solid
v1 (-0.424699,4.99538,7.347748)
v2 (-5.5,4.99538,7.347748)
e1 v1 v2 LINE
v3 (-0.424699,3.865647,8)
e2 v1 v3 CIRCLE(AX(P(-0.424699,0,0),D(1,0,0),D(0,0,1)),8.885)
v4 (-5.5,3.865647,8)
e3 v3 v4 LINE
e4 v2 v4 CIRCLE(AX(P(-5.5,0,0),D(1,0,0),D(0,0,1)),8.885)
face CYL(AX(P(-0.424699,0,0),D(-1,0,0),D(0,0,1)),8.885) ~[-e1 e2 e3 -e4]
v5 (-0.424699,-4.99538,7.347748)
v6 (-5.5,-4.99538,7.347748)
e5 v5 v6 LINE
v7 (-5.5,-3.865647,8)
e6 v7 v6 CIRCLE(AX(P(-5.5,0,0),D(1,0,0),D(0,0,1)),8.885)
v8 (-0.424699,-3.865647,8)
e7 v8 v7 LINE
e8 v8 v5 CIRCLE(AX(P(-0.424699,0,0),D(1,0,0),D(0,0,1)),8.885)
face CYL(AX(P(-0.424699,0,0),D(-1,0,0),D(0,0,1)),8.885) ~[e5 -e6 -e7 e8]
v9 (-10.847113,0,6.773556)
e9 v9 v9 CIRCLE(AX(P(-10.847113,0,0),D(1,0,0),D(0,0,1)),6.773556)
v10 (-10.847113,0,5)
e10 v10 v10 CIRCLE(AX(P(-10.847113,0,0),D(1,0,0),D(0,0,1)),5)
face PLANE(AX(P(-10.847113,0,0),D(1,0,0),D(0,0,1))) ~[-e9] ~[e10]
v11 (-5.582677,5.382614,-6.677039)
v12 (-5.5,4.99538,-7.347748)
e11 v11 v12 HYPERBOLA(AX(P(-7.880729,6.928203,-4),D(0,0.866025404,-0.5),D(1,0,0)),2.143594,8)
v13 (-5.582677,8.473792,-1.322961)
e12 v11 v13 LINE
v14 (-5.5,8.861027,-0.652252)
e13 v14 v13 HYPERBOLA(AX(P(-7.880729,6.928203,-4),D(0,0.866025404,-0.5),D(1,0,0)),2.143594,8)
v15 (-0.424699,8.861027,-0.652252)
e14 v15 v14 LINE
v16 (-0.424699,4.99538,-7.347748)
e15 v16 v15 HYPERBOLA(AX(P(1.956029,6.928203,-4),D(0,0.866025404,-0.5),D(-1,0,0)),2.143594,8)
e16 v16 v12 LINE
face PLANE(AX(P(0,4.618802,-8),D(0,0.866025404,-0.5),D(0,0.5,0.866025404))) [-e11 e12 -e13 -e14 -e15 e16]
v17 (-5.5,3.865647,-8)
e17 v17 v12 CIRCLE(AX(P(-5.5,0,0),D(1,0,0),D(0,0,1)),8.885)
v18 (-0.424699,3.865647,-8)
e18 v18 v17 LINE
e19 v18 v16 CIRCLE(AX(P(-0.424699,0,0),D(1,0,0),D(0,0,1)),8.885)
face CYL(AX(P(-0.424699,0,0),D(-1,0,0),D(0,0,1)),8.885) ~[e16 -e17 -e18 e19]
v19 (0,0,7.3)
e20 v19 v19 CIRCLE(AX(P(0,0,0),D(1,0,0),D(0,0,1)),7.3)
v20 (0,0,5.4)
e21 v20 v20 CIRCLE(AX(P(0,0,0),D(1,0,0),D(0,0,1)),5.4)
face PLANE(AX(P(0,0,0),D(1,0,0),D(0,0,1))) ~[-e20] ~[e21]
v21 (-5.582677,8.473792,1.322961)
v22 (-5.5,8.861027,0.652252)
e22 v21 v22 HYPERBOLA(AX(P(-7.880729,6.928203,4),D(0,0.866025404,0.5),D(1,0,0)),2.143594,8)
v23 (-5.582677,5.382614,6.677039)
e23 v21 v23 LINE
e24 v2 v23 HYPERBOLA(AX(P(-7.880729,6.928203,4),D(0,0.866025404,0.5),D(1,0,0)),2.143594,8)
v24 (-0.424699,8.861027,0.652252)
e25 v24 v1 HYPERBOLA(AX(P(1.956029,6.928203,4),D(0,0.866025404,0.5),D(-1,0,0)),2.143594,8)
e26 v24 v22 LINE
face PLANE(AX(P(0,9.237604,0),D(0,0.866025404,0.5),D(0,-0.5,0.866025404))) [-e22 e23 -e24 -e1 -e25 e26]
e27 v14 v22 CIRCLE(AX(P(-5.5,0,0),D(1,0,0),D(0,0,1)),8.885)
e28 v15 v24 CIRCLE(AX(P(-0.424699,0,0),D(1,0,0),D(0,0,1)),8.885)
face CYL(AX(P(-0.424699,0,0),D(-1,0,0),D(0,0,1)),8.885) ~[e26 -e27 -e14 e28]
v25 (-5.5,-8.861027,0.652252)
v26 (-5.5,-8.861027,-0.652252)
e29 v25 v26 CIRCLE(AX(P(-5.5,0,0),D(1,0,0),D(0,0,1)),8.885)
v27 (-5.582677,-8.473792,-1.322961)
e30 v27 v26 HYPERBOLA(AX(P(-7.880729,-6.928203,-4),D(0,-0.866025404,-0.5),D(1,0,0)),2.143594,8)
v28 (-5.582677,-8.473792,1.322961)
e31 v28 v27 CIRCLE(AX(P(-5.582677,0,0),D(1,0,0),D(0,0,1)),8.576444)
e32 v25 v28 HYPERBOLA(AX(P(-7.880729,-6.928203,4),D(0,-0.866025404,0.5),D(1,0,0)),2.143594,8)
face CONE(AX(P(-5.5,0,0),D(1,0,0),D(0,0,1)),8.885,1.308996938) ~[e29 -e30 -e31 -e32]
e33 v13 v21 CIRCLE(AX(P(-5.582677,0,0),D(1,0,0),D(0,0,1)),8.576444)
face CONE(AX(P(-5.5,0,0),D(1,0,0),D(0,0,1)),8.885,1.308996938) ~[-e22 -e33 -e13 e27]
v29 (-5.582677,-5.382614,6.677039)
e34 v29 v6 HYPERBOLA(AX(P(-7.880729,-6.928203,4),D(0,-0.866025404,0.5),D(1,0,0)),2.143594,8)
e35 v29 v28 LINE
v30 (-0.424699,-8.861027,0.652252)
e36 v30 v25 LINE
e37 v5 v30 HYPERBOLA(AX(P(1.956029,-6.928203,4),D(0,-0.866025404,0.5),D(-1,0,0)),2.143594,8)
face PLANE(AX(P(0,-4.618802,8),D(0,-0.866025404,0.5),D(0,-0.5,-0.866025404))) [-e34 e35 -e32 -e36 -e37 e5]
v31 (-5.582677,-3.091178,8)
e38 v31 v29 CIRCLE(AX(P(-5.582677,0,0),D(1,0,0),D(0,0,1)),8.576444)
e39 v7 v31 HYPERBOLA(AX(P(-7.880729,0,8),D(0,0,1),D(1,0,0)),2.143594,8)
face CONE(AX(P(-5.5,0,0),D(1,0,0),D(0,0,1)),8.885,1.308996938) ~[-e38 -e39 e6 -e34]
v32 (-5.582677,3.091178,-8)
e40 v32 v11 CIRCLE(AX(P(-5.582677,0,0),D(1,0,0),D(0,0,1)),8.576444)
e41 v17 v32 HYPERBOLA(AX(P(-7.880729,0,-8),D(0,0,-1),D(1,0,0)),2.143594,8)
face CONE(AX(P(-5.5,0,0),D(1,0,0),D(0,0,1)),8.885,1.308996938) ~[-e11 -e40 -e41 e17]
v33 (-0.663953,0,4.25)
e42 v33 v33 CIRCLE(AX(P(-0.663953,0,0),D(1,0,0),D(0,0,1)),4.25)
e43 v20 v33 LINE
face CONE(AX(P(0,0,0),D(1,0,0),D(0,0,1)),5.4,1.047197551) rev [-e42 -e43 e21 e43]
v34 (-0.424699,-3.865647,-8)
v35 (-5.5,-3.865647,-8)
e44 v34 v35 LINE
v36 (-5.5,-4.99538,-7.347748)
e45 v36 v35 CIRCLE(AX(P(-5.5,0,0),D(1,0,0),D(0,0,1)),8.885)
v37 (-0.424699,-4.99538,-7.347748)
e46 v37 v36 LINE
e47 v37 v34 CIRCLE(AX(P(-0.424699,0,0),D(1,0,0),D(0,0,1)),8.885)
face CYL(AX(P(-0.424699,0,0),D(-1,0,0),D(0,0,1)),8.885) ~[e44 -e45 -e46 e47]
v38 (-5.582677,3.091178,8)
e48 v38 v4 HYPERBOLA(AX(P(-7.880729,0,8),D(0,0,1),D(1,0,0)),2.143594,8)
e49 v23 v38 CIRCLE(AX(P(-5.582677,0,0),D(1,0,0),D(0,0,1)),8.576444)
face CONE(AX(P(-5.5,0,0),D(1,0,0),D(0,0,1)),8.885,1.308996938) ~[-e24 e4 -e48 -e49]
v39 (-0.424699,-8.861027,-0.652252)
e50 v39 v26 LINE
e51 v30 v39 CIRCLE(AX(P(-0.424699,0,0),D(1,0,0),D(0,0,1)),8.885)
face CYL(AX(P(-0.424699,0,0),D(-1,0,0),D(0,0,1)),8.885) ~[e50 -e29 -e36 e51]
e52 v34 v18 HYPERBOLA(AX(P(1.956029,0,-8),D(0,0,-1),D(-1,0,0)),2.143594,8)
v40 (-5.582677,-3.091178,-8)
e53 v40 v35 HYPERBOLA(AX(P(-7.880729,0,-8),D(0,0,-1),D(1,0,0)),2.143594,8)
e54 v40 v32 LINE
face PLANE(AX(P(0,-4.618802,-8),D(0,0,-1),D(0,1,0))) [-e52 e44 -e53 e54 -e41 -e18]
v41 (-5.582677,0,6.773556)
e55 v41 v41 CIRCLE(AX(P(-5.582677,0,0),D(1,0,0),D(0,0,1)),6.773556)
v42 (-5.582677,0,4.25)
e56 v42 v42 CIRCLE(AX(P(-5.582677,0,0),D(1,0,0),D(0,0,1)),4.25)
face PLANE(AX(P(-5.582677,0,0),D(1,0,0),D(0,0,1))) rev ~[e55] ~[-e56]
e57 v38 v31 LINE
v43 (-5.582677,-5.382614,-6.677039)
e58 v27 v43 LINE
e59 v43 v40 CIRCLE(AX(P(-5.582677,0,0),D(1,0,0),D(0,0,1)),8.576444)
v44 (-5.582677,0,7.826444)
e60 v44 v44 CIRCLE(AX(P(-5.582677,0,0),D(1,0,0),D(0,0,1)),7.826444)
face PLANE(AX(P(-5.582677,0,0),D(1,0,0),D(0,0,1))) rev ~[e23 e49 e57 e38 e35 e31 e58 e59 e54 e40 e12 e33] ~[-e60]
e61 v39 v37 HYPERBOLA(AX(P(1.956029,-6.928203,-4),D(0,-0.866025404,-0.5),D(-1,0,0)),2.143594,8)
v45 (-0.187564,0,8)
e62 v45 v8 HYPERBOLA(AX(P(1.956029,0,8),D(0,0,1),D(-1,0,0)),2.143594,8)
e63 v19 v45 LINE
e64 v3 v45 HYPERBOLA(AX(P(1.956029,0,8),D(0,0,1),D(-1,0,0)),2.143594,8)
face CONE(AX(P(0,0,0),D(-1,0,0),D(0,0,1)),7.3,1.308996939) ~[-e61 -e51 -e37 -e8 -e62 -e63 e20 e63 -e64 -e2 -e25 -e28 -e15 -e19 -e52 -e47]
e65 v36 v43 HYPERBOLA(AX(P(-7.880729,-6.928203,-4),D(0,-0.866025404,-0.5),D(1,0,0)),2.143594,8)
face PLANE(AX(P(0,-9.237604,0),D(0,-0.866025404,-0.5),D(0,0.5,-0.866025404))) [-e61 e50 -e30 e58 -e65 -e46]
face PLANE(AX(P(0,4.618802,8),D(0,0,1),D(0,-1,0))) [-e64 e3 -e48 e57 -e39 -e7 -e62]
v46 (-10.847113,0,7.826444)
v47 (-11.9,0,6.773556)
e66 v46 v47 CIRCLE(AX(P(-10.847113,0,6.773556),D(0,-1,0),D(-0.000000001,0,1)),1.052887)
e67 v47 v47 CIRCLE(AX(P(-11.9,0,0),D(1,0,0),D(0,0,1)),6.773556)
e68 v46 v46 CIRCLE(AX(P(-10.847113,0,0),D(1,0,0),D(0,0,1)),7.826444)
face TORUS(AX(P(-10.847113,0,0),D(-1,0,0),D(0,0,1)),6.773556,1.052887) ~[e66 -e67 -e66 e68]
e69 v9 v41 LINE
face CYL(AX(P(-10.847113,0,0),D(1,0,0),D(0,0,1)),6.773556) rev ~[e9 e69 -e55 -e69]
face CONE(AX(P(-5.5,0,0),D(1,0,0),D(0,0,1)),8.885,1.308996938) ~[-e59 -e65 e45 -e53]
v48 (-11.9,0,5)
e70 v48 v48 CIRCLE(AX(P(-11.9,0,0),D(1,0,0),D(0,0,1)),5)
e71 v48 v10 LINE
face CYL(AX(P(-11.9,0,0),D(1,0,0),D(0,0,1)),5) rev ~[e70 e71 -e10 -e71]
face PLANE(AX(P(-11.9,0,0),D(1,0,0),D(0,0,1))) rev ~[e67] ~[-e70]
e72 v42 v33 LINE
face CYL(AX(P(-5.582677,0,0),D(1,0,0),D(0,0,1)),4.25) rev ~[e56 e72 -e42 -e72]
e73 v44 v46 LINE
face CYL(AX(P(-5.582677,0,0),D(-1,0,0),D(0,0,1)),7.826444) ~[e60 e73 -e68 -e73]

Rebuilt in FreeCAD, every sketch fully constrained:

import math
import FreeCAD as App
import Part
import Sketcher
from FreeCAD import Vector
Q = App.Units.Quantity

doc = App.newDocument("Part")
body = doc.addObject("PartDesign::Body", "Body")

# Sketch on XY plane
sketch1 = body.newObject("Sketcher::SketchObject", "Sketch")
sketch1.AttachmentSupport = (doc.getObject("XY_Plane"), [""])
sketch1.MapMode = "FlatFace"
sketch1.addGeometry(Part.LineSegment(Vector(-11.9, 6.77, 0), Vector(-11.9, 5, 0)), False)
sketch1.addGeometry(Part.LineSegment(Vector(-11.9, 5, 0), Vector(-10.85, 5, 0)), False)
sketch1.addGeometry(Part.LineSegment(Vector(-10.85, 5, 0), Vector(-10.85, 6.77, 0)), False)
sketch1.addGeometry(Part.LineSegment(Vector(-10.85, 6.77, 0), Vector(-5.58, 6.77, 0)), False)
sketch1.addGeometry(Part.LineSegment(Vector(-5.58, 6.77, 0), Vector(-5.58, 4.25, 0)), False)
sketch1.addGeometry(Part.LineSegment(Vector(-5.58, 4.25, 0), Vector(0, 4.25, 0)), False)
sketch1.addGeometry(Part.LineSegment(Vector(0, 4.25, 0), Vector(0, 7.3, 0)), False)
sketch1.addGeometry(Part.LineSegment(Vector(0, 7.3, 0), Vector(-0.42, 8.88, 0)), False)
sketch1.addGeometry(Part.LineSegment(Vector(-0.42, 8.88, 0), Vector(-5.5, 8.88, 0)), False)
sketch1.addGeometry(Part.LineSegment(Vector(-5.5, 8.88, 0), Vector(-5.58, 8.58, 0)), False)
sketch1.addGeometry(Part.LineSegment(Vector(-5.58, 8.58, 0), Vector(-5.58, 7.83, 0)), False)
sketch1.addGeometry(Part.LineSegment(Vector(-5.58, 7.83, 0), Vector(-10.85, 7.83, 0)), False)
sketch1.addGeometry(Part.ArcOfCircle(Part.Circle(Vector(-10.85, 6.77, 0), Vector(0, 0, 1), 1.05), math.radians(90), math.radians(180)), False)
sketch1.addConstraint(Sketcher.Constraint("Coincident", 0, 2, 1, 1))
sketch1.addConstraint(Sketcher.Constraint("Coincident", 1, 2, 2, 1))
sketch1.addConstraint(Sketcher.Constraint("Coincident", 2, 2, 3, 1))
sketch1.addConstraint(Sketcher.Constraint("Coincident", 3, 2, 4, 1))
sketch1.addConstraint(Sketcher.Constraint("Coincident", 4, 2, 5, 1))
sketch1.addConstraint(Sketcher.Constraint("Coincident", 5, 2, 6, 1))
sketch1.addConstraint(Sketcher.Constraint("Coincident", 6, 2, 7, 1))
sketch1.addConstraint(Sketcher.Constraint("Coincident", 7, 2, 8, 1))
sketch1.addConstraint(Sketcher.Constraint("Coincident", 8, 2, 9, 1))
sketch1.addConstraint(Sketcher.Constraint("Coincident", 9, 2, 10, 1))
sketch1.addConstraint(Sketcher.Constraint("Coincident", 10, 2, 11, 1))
sketch1.addConstraint(Sketcher.Constraint("Tangent", 11, 2, 12, 1))
sketch1.addConstraint(Sketcher.Constraint("Tangent", 12, 2, 0, 1))
sketch1.addConstraint(Sketcher.Constraint("Vertical", 0))
sketch1.addConstraint(Sketcher.Constraint("Horizontal", 1))
sketch1.addConstraint(Sketcher.Constraint("Vertical", 2))
sketch1.addConstraint(Sketcher.Constraint("Horizontal", 3))
sketch1.addConstraint(Sketcher.Constraint("Vertical", 4))
sketch1.addConstraint(Sketcher.Constraint("Horizontal", 5))
sketch1.addConstraint(Sketcher.Constraint("Vertical", 6))
sketch1.addConstraint(Sketcher.Constraint("Horizontal", 8))
sketch1.addConstraint(Sketcher.Constraint("Vertical", 10))
sketch1.addConstraint(Sketcher.Constraint("Horizontal", 11))
sketch1.addConstraint(Sketcher.Constraint("Coincident", 2, 2, 12, 3))
sketch1.addConstraint(Sketcher.Constraint("PointOnObject", 5, 2, -2))
sketch1.addConstraint(Sketcher.Constraint("Vertical", 4, 2, 9, 2))
sketch1.addConstraint(Sketcher.Constraint("Angle", 7, Q("105 deg")))
sketch1.addConstraint(Sketcher.Constraint("Angle", 9, Q("-105 deg")))
sketch1.addConstraint(Sketcher.Constraint("DistanceY", -1, 1, 0, 2, 5.0))
sketch1.addConstraint(Sketcher.Constraint("DistanceY", 6, 1, 6, 2, 3.05))
sketch1.addConstraint(Sketcher.Constraint("DistanceY", 10, 2, 10, 1, 0.75))
sketch1.addConstraint(Sketcher.Constraint("DistanceX", 0, 2, -1, 1, 11.9))
sketch1.addConstraint(Sketcher.Constraint("DistanceY", -1, 1, 6, 2, 7.3))
sketch1.addConstraint(Sketcher.Constraint("DistanceX", 8, 2, -1, 1, 5.5))
sketch1.addConstraint(Sketcher.Constraint("DistanceX", 8, 2, 8, 1, 5.075301))
sketch1.addConstraint(Sketcher.Constraint("Radius", 12, 1.052887))
sketch1.addConstraint(Sketcher.Constraint("Distance", 9, 0.319441))
revolution = body.newObject("PartDesign::Revolution", "Revolution")
revolution.Profile = sketch1
revolution.ReferenceAxis = (sketch1, ["H_Axis"])
revolution.Angle = 360

# Sketch on YZ plane
sketch2 = body.newObject("Sketcher::SketchObject", "Sketch001")
sketch2.AttachmentSupport = (doc.getObject("YZ_Plane"), [""])
sketch2.MapMode = "FlatFace"
sketch2.addGeometry(Part.LineSegment(Vector(13, 13, 0), Vector(-13, 13, 0)), False)
sketch2.addGeometry(Part.LineSegment(Vector(-13, 13, 0), Vector(-13, -13, 0)), False)
sketch2.addGeometry(Part.LineSegment(Vector(-13, -13, 0), Vector(13, -13, 0)), False)
sketch2.addGeometry(Part.LineSegment(Vector(13, -13, 0), Vector(13, 13, 0)), False)
sketch2.addGeometry(Part.LineSegment(Vector(5, -8, 0), Vector(-5, -8, 0)), False)
sketch2.addGeometry(Part.LineSegment(Vector(-5, -8, 0), Vector(-9, 0, 0)), False)
sketch2.addGeometry(Part.LineSegment(Vector(-9, 0, 0), Vector(-5, 8, 0)), False)
sketch2.addGeometry(Part.LineSegment(Vector(-5, 8, 0), Vector(5, 8, 0)), False)
sketch2.addGeometry(Part.LineSegment(Vector(5, 8, 0), Vector(9, 0, 0)), False)
sketch2.addGeometry(Part.LineSegment(Vector(9, 0, 0), Vector(5, -8, 0)), False)
sketch2.addConstraint(Sketcher.Constraint("Coincident", 0, 2, 1, 1))
sketch2.addConstraint(Sketcher.Constraint("Coincident", 1, 2, 2, 1))
sketch2.addConstraint(Sketcher.Constraint("Coincident", 2, 2, 3, 1))
sketch2.addConstraint(Sketcher.Constraint("Coincident", 3, 2, 0, 1))
sketch2.addConstraint(Sketcher.Constraint("Coincident", 4, 2, 5, 1))
sketch2.addConstraint(Sketcher.Constraint("Coincident", 5, 2, 6, 1))
sketch2.addConstraint(Sketcher.Constraint("Coincident", 6, 2, 7, 1))
sketch2.addConstraint(Sketcher.Constraint("Coincident", 7, 2, 8, 1))
sketch2.addConstraint(Sketcher.Constraint("Coincident", 8, 2, 9, 1))
sketch2.addConstraint(Sketcher.Constraint("Coincident", 9, 2, 4, 1))
sketch2.addConstraint(Sketcher.Constraint("Horizontal", 0))
sketch2.addConstraint(Sketcher.Constraint("Vertical", 1))
sketch2.addConstraint(Sketcher.Constraint("Horizontal", 2))
sketch2.addConstraint(Sketcher.Constraint("Vertical", 3))
sketch2.addConstraint(Sketcher.Constraint("Horizontal", 4))
sketch2.addConstraint(Sketcher.Constraint("Horizontal", 7))
sketch2.addConstraint(Sketcher.Constraint("Symmetric", 0, 2, 2, 2, -1, 1))
sketch2.addConstraint(Sketcher.Constraint("Symmetric", 4, 2, 7, 2, -1, 1))
sketch2.addConstraint(Sketcher.Constraint("Symmetric", 5, 2, 8, 2, -1, 1))
sketch2.addConstraint(Sketcher.Constraint("PointOnObject", 5, 2, -1))
sketch2.addConstraint(Sketcher.Constraint("Parallel", 6, 9))
sketch2.addConstraint(Sketcher.Constraint("Vertical", 4, 2, 6, 2))
sketch2.addConstraint(Sketcher.Constraint("Equal", 2, 1))
sketch2.addConstraint(Sketcher.Constraint("Angle", 5, Q("120 deg")))
sketch2.addConstraint(Sketcher.Constraint("DistanceY", 4, 2, -1, 1, 8.0))
sketch2.addConstraint(Sketcher.Constraint("DistanceX", 0, 2, 0, 1, 25.332))
sketch2.addConstraint(Sketcher.Constraint("DistanceX", 4, 2, 4, 1, 9.237604))
pocket1 = body.newObject("PartDesign::Pocket", "Pocket")
pocket1.Profile = sketch2
pocket1.Type = "ThroughAll"

# Sketch on XY plane
sketch3 = body.newObject("Sketcher::SketchObject", "Sketch002")
sketch3.AttachmentSupport = (doc.getObject("XY_Plane"), [""])
sketch3.MapMode = "FlatFace"
sketch3.addGeometry(Part.LineSegment(Vector(0, 0, 0), Vector(0, 5.4, 0)), False)
sketch3.addGeometry(Part.LineSegment(Vector(0, 5.4, 0), Vector(-0.7, 4.2, 0)), False)
sketch3.addGeometry(Part.LineSegment(Vector(-0.7, 4.2, 0), Vector(-0.7, 0, 0)), False)
sketch3.addGeometry(Part.LineSegment(Vector(-0.7, 0, 0), Vector(0, 0, 0)), False)
sketch3.addConstraint(Sketcher.Constraint("Coincident", 0, 2, 1, 1))
sketch3.addConstraint(Sketcher.Constraint("Coincident", 1, 2, 2, 1))
sketch3.addConstraint(Sketcher.Constraint("Coincident", 2, 2, 3, 1))
sketch3.addConstraint(Sketcher.Constraint("Coincident", 3, 2, 0, 1))
sketch3.addConstraint(Sketcher.Constraint("Vertical", 0))
sketch3.addConstraint(Sketcher.Constraint("Vertical", 2))
sketch3.addConstraint(Sketcher.Constraint("Horizontal", 3))
sketch3.addConstraint(Sketcher.Constraint("Coincident", 3, 2, -1, 1))
sketch3.addConstraint(Sketcher.Constraint("Angle", 1, Q("-120 deg")))
sketch3.addConstraint(Sketcher.Constraint("DistanceY", 0, 1, 0, 2, 5.4))
sketch3.addConstraint(Sketcher.Constraint("DistanceY", 2, 2, 2, 1, 4.25))
groove = body.newObject("PartDesign::Groove", "Groove")
groove.Profile = sketch3
groove.ReferenceAxis = (sketch3, ["H_Axis"])
groove.Angle = 360

doc.recompute()
